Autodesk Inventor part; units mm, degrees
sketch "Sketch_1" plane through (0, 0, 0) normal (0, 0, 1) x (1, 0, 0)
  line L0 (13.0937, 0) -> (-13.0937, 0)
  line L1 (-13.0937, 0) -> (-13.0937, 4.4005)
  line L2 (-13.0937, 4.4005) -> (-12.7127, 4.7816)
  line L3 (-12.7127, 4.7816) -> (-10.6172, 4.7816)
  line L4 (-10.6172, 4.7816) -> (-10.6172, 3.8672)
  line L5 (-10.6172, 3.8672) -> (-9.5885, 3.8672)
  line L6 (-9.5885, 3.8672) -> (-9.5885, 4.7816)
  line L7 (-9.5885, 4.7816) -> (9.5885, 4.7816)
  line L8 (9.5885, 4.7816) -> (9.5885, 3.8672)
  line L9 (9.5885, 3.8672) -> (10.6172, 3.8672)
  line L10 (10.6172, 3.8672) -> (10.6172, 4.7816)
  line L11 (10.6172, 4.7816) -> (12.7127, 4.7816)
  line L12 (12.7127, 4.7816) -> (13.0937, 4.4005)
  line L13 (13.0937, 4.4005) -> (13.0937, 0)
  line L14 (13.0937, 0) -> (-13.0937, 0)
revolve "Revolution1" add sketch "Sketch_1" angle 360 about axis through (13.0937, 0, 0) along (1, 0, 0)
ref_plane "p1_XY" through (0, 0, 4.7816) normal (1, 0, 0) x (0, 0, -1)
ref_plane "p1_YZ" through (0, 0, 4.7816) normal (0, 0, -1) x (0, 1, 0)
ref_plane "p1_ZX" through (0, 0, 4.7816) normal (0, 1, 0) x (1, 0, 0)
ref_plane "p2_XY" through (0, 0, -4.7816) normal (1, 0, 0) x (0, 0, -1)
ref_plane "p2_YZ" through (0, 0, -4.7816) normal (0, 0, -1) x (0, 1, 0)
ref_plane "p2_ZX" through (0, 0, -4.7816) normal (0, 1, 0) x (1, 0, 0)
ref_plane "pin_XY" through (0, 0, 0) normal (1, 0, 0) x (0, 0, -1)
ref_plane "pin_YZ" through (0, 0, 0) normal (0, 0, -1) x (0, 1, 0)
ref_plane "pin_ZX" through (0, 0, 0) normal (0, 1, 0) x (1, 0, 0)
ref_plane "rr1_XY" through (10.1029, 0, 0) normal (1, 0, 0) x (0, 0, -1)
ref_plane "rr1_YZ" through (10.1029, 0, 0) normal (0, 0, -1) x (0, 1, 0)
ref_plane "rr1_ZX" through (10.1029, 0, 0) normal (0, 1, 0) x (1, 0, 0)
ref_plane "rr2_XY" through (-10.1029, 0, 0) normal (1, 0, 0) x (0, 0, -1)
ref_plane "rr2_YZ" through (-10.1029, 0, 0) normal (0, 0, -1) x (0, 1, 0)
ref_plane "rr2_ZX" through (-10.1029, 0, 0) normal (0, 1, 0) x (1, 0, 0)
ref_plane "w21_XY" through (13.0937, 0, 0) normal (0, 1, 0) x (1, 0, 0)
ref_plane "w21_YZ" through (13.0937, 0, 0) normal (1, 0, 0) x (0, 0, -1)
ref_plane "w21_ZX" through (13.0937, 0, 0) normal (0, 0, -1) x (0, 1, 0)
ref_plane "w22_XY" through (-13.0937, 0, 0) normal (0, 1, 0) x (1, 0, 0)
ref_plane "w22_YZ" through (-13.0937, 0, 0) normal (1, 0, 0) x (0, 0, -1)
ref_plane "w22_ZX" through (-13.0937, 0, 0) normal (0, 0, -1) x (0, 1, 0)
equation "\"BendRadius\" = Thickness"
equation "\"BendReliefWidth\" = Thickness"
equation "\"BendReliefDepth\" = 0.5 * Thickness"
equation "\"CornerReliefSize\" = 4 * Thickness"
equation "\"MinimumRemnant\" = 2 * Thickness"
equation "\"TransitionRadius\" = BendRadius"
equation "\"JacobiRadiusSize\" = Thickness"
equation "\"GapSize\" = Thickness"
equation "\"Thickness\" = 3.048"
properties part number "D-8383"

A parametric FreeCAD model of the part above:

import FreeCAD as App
import Part
import Sketcher
Q = App.Units.Quantity


def add_polygon(sketch, points):
    """Adds a closed chain of lines whose ends are joined by coincident constraints."""
    first, n = sketch.GeometryCount, len(points)
    for a, b in zip(points, points[1:] + points[:1]):
        sketch.addGeometry(Part.LineSegment(App.Vector(*a, 0), App.Vector(*b, 0)), False)
    for i in range(n):
        sketch.addConstraint(Sketcher.Constraint("Coincident", first + i, 2, first + (i + 1) % n, 1))

doc = App.newDocument("Part")
body = doc.addObject("PartDesign::Body", "Body")

# Sketch on XY plane
sketch1 = doc.addObject("Sketcher::SketchObject", "Sketch")
body.addObject(sketch1)
sketch1.AttachmentSupport = (doc.XY_Plane, [""])
sketch1.MapMode = "FlatFace"
add_polygon(sketch1, [(-13.1, 0), (13.1, 0), (13.1, 4.4), (12.7, 4.8), (10.6, 4.8), (10.6, 3.9), (9.6, 3.9), (9.6, 4.8), (-9.6, 4.8), (-9.6, 3.9), (-10.6, 3.9), (-10.6, 4.8), (-12.7, 4.8), (-13.1, 4.4)])  # lines 0-13
sketch1.addConstraint([
    Sketcher.Constraint("Horizontal", 0),
    Sketcher.Constraint("Vertical", 1),
    Sketcher.Constraint("Horizontal", 3),
    Sketcher.Constraint("Vertical", 4),
    Sketcher.Constraint("Horizontal", 5),
    Sketcher.Constraint("Vertical", 6),
    Sketcher.Constraint("Horizontal", 7),
    Sketcher.Constraint("Vertical", 8),
    Sketcher.Constraint("Horizontal", 9),
    Sketcher.Constraint("Vertical", 10),
    Sketcher.Constraint("Horizontal", 11),
    Sketcher.Constraint("Vertical", 13),
    Sketcher.Constraint("Symmetric", 0, 2, 13, 2, -1, 1),
    Sketcher.Constraint("Symmetric", 5, 2, 8, 2, -2),
    Sketcher.Constraint("Symmetric", 3, 2, 10, 2, -2),
    Sketcher.Constraint("Perpendicular", 2, 12),
    Sketcher.Constraint("Horizontal", 3, 2, 6, 2),
    Sketcher.Constraint("Horizontal", 1, 2, 12, 2),
    Sketcher.Constraint("Equal", 3, 11),
    Sketcher.Constraint("DistanceX", 0, 1, 0, 2, Q("1.031 in")),
    Sketcher.Constraint("DistanceX", 7, 2, 7, 1, Q("0.755 in")),
    Sketcher.Constraint("DistanceY", 4, 2, 4, 1, Q("0.036 in")),
    Sketcher.Constraint("DistanceX", 3, 2, 3, 1, Q("0.0825 in")),
    Sketcher.Constraint("DistanceX", 5, 2, 5, 1, Q("0.0405 in")),
    Sketcher.Constraint("DistanceY", 1, 1, 1, 2, 4.4005),
])
revolution = doc.addObject("PartDesign::Revolution", "Revolution")
body.addObject(revolution)
revolution.Profile = sketch1
revolution.ReferenceAxis = (sketch1, ["H_Axis"])
revolution.Angle = 360

doc.recompute()
